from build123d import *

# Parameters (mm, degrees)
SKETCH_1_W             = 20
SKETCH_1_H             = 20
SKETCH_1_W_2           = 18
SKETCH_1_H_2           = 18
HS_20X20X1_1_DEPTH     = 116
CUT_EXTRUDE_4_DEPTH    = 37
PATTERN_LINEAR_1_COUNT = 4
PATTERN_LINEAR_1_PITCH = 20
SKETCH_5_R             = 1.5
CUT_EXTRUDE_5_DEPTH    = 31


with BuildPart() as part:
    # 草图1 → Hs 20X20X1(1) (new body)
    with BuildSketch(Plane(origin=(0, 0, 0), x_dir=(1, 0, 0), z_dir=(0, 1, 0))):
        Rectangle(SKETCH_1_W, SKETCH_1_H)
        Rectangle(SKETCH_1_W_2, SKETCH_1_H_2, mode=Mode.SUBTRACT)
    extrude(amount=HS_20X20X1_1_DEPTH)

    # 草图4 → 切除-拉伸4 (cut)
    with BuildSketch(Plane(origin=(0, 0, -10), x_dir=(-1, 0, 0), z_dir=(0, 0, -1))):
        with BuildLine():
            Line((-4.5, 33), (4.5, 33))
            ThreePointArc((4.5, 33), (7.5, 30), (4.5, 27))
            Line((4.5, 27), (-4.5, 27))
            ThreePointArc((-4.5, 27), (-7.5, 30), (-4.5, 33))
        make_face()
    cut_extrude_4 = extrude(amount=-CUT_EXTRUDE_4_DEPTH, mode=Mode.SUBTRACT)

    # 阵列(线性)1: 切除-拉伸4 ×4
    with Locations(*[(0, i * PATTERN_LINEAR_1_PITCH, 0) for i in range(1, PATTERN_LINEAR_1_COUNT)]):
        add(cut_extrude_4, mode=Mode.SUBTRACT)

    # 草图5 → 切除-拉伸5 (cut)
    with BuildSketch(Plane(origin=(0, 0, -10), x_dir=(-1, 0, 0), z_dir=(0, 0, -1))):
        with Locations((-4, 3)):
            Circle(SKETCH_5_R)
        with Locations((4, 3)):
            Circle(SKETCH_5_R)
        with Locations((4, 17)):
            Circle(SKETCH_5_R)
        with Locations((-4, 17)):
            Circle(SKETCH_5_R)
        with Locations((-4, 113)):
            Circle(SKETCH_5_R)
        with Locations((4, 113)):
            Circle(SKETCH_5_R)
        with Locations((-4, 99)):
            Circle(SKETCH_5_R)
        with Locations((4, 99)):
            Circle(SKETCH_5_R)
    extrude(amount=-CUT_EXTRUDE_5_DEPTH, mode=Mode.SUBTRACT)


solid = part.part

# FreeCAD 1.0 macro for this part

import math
import FreeCAD as App
import Part
import Sketcher
from FreeCAD import Vector
Q = App.Units.Quantity

doc = App.newDocument("Part")
body = doc.addObject("PartDesign::Body", "Body")

sketch1 = body.newObject("Sketcher::SketchObject", "Sketch")
sketch1.AttachmentSupport = (doc.getObject("XZ_Plane"), [""])
sketch1.MapMode = "FlatFace"
sketch1.addGeometry([
    Part.LineSegment(Vector(-10, -10, 0), Vector(-10, 10, 0)),
    Part.LineSegment(Vector(-10, 10, 0), Vector(10, 10, 0)),
    Part.LineSegment(Vector(10, 10, 0), Vector(10, -10, 0)),
    Part.LineSegment(Vector(10, -10, 0), Vector(-10, -10, 0)),
    Part.LineSegment(Vector(9, 9, 0), Vector(-9, 9, 0)),
    Part.LineSegment(Vector(-9, 9, 0), Vector(-9, -9, 0)),
    Part.LineSegment(Vector(-9, -9, 0), Vector(9, -9, 0)),
    Part.LineSegment(Vector(9, -9, 0), Vector(9, 9, 0)),
], False)
sketch1.addConstraint([
    Sketcher.Constraint("Coincident", 0, 2, 1, 1),
    Sketcher.Constraint("Coincident", 1, 2, 2, 1),
    Sketcher.Constraint("Coincident", 2, 2, 3, 1),
    Sketcher.Constraint("Coincident", 3, 2, 0, 1),
    Sketcher.Constraint("Coincident", 4, 2, 5, 1),
    Sketcher.Constraint("Coincident", 5, 2, 6, 1),
    Sketcher.Constraint("Coincident", 6, 2, 7, 1),
    Sketcher.Constraint("Coincident", 7, 2, 4, 1),
    Sketcher.Constraint("Vertical", 0),
    Sketcher.Constraint("Horizontal", 1),
    Sketcher.Constraint("Vertical", 2),
    Sketcher.Constraint("Horizontal", 3),
    Sketcher.Constraint("Horizontal", 4),
    Sketcher.Constraint("Vertical", 5),
    Sketcher.Constraint("Horizontal", 6),
    Sketcher.Constraint("Vertical", 7),
    Sketcher.Constraint("Symmetric", 0, 2, 2, 2, -1, 1),
    Sketcher.Constraint("Symmetric", 4, 2, 6, 2, -1, 1),
    Sketcher.Constraint("Equal", 3, 0),
    Sketcher.Constraint("Equal", 6, 5),
    Sketcher.Constraint("DistanceX", 1, 1, 1, 2, Q("20 mm")),
    Sketcher.Constraint("DistanceX", 4, 2, 4, 1, Q("18 mm")),
])
pad1 = body.newObject("PartDesign::Pad", "Pad")
pad1.Profile = sketch1
pad1.Length = 116
pad1.Reversed = True

sketch2 = body.newObject("Sketcher::SketchObject", "Sketch001")
sketch2.AttachmentSupport = (doc.getObject("XY_Plane"), [""])
sketch2.MapMode = "FlatFace"
sketch2.AttachmentOffset = App.Placement(Vector(0, 0, -10), App.Rotation())
sketch2.addGeometry([
    Part.LineSegment(Vector(-4.5, 33, 0), Vector(4.5, 33, 0)),
    Part.ArcOfCircle(Part.Circle(Vector(4.5, 30, 0), Vector(0, 0, 1), 3), math.radians(-90), math.radians(90)),
    Part.LineSegment(Vector(4.5, 27, 0), Vector(-4.5, 27, 0)),
    Part.ArcOfCircle(Part.Circle(Vector(-4.5, 30, 0), Vector(0, 0, 1), 3), math.radians(90), math.radians(270)),
], False)
sketch2.addConstraint([
    Sketcher.Constraint("Tangent", 0, 2, 1, 2),
    Sketcher.Constraint("Tangent", 1, 1, 2, 1),
    Sketcher.Constraint("Tangent", 2, 2, 3, 2),
    Sketcher.Constraint("Tangent", 3, 1, 0, 1),
    Sketcher.Constraint("Horizontal", 0),
    Sketcher.Constraint("Horizontal", 2),
    Sketcher.Constraint("Radius", 1, Q("3 mm")),
    Sketcher.Constraint("DistanceX", 0, 1, 0, 2, Q("9 mm")),
    Sketcher.Constraint("DistanceY", -1, 1, 1, 3, Q("30 mm")),
    Sketcher.Constraint("DistanceX", -1, 1, 1, 3, Q("4.5 mm")),
])
pocket1 = body.newObject("PartDesign::Pocket", "Pocket")
pocket1.Profile = sketch2
pocket1.Length = 37
pocket1.Reversed = True
doc.recompute()

linearpattern = body.newObject("PartDesign::LinearPattern", "LinearPattern")
linearpattern.Originals = [pocket1]
linearpattern.Direction = (doc.getObject("Y_Axis"), [""])
linearpattern.Mode = "offset"
linearpattern.Offset = 20
linearpattern.Occurrences = 4
body.Tip = linearpattern

sketch3 = body.newObject("Sketcher::SketchObject", "Sketch002")
sketch3.AttachmentSupport = (doc.getObject("XY_Plane"), [""])
sketch3.MapMode = "FlatFace"
sketch3.AttachmentOffset = App.Placement(Vector(0, 0, -10), App.Rotation())
sketch3.addGeometry([
    Part.Circle(Vector(4, 3, 0), Vector(0, 0, 1), 1.5),
    Part.Circle(Vector(-4, 3, 0), Vector(0, 0, 1), 1.5),
    Part.Circle(Vector(-4, 17, 0), Vector(0, 0, 1), 1.5),
    Part.Circle(Vector(4, 17, 0), Vector(0, 0, 1), 1.5),
    Part.Circle(Vector(4, 113, 0), Vector(0, 0, 1), 1.5),
    Part.Circle(Vector(-4, 113, 0), Vector(0, 0, 1), 1.5),
    Part.Circle(Vector(4, 99, 0), Vector(0, 0, 1), 1.5),
    Part.Circle(Vector(-4, 99, 0), Vector(0, 0, 1), 1.5),
], False)
sketch3.addConstraint([
    Sketcher.Constraint("Equal", 0, 1),
    Sketcher.Constraint("Equal", 1, 2),
    Sketcher.Constraint("Equal", 2, 3),
    Sketcher.Constraint("Equal", 3, 4),
    Sketcher.Constraint("Equal", 4, 5),
    Sketcher.Constraint("Equal", 5, 6),
    Sketcher.Constraint("Equal", 6, 7),
    Sketcher.Constraint("Symmetric", 0, 3, 1, 3, -2),
    Sketcher.Constraint("Symmetric", 2, 3, 3, 3, -2),
    Sketcher.Constraint("Symmetric", 4, 3, 5, 3, -2),
    Sketcher.Constraint("Symmetric", 6, 3, 7, 3, -2),
    Sketcher.Constraint("Vertical", 1, 3, 2, 3),
    Sketcher.Constraint("Vertical", 3, 3, 4, 3),
    Sketcher.Constraint("Vertical", 4, 3, 6, 3),
    Sketcher.Constraint("Diameter", 0, Q("3 mm")),
    Sketcher.Constraint("DistanceX", -1, 1, 0, 3, Q("4 mm")),
    Sketcher.Constraint("DistanceY", -1, 1, 0, 3, Q("3 mm")),
    Sketcher.Constraint("DistanceY", -1, 1, 2, 3, Q("17 mm")),
    Sketcher.Constraint("DistanceY", -1, 1, 4, 3, Q("113 mm")),
    Sketcher.Constraint("DistanceY", -1, 1, 6, 3, Q("99 mm")),
])
pocket2 = body.newObject("PartDesign::Pocket", "Pocket001")
pocket2.Profile = sketch3
pocket2.Length = 31
pocket2.Reversed = True

doc.recompute()
